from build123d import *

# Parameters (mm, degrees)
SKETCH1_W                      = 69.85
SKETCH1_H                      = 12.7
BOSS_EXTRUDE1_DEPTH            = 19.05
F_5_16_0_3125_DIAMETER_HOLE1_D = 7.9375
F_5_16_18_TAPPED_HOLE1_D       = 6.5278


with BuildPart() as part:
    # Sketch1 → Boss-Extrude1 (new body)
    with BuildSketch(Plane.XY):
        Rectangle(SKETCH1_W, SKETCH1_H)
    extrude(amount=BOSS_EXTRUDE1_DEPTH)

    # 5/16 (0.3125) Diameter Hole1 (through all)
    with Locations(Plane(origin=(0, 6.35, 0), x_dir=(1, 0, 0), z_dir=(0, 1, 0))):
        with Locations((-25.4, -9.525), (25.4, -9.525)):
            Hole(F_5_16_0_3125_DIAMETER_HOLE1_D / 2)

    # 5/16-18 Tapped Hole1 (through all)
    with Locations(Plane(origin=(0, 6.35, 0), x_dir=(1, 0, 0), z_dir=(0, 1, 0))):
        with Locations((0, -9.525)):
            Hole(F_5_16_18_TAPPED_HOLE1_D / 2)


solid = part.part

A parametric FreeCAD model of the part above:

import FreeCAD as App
import Part
import Sketcher
from FreeCAD import Vector
Q = App.Units.Quantity


def add_polygon(sketch, points):
    """Adds a closed chain of lines whose ends are joined by coincident constraints."""
    first, n = sketch.GeometryCount, len(points)
    for a, b in zip(points, points[1:] + points[:1]):
        sketch.addGeometry(Part.LineSegment(App.Vector(*a, 0), App.Vector(*b, 0)), False)
    for i in range(n):
        sketch.addConstraint(Sketcher.Constraint("Coincident", first + i, 2, first + (i + 1) % n, 1))

doc = App.newDocument("Part")
body = doc.addObject("PartDesign::Body", "Body")

sketch1 = doc.addObject("Sketcher::SketchObject", "Sketch")
body.addObject(sketch1)
sketch1.AttachmentSupport = (doc.XY_Plane, [""])
sketch1.MapMode = "FlatFace"
add_polygon(sketch1, [(-35, 6), (-35, -6), (35, -6), (35, 6)])
sketch1.addConstraint([
    Sketcher.Constraint("Vertical", 0),
    Sketcher.Constraint("Horizontal", 1),
    Sketcher.Constraint("Vertical", 2),
    Sketcher.Constraint("Horizontal", 3),
    Sketcher.Constraint("Symmetric", 0, 2, 2, 2, -1, 1),
    Sketcher.Constraint("DistanceY", 0, 2, 0, 1, Q("0.5 in")),
    Sketcher.Constraint("DistanceX", 1, 1, 1, 2, Q("2.75 in")),
])
pad1 = doc.addObject("PartDesign::Pad", "Pad")
body.addObject(pad1)
pad1.Profile = sketch1
pad1.Length = Q("0.75 in")

sketch2 = doc.addObject("Sketcher::SketchObject", "Sketch001")
body.addObject(sketch2)
sketch2.AttachmentSupport = (doc.XZ_Plane, [""])
sketch2.MapMode = "FlatFace"
sketch2.AttachmentOffset = App.Placement(Vector(0, 0, -0.25 * 25.4), App.Rotation())
sketch2.addGeometry([
    Part.Circle(Vector(-25.4, 9.5, 0), Vector(0, 0, 1), 4),
    Part.Circle(Vector(25.4, 9.5, 0), Vector(0, 0, 1), 4),
], False)
sketch2.addConstraint([
    Sketcher.Constraint("Equal", 0, 1),
    Sketcher.Constraint("Symmetric", 0, 3, 1, 3, -2),
    Sketcher.Constraint("Diameter", 0, Q("0.3125 in")),
    Sketcher.Constraint("DistanceX", 0, 3, -1, 1, Q("1 in")),
    Sketcher.Constraint("DistanceY", -1, 1, 0, 3, Q("0.375 in")),
])
doc.recompute()
hole = doc.addObject("PartDesign::Hole", "Hole")
body.addObject(hole)
hole.Profile = sketch2
hole.ThreadType = "None"
hole.Diameter = Q("0.3125 in")
hole.DepthType = "ThroughAll"
hole.Reversed = True

sketch3 = doc.addObject("Sketcher::SketchObject", "Sketch002")
body.addObject(sketch3)
sketch3.AttachmentSupport = (doc.XZ_Plane, [""])
sketch3.MapMode = "FlatFace"
sketch3.AttachmentOffset = App.Placement(Vector(0, 0, -0.25 * 25.4), App.Rotation())
sketch3.addGeometry(Part.Circle(Vector(0, 9.5, 0), Vector(0, 0, 1), 3.3), False)
sketch3.addConstraint([
    Sketcher.Constraint("PointOnObject", 0, 3, -2),
    Sketcher.Constraint("Diameter", 0, Q("0.257 in")),
    Sketcher.Constraint("DistanceY", -1, 1, 0, 3, Q("0.375 in")),
])
doc.recompute()
hole2 = doc.addObject("PartDesign::Hole", "Hole001")
body.addObject(hole2)
hole2.Profile = sketch3
hole2.ThreadType = "None"
hole2.Diameter = Q("0.257 in")
hole2.DepthType = "ThroughAll"
hole2.Reversed = True

doc.recompute()
